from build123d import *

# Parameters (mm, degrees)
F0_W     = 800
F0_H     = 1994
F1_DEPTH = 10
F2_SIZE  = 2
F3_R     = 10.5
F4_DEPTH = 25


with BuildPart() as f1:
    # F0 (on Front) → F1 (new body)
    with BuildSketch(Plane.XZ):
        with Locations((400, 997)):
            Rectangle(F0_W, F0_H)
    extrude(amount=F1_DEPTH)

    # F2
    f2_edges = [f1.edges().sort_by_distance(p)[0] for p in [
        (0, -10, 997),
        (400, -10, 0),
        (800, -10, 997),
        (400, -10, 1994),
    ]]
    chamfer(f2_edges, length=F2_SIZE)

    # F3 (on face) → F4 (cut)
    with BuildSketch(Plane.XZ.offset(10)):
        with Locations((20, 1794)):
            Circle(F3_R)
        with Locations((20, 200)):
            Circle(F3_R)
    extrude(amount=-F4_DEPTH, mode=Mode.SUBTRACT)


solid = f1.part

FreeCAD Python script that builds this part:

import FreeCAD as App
import Part
import Sketcher
from FreeCAD import Vector


def edges_at(feature, points):
    """Names of the edges that pass closest to the given points."""
    edges = feature.Shape.Edges
    near = lambda p: min(range(len(edges)), key=lambda i: edges[i].distToShape(Part.Vertex(*p))[0])
    return sorted({f"Edge{near(p) + 1}" for p in points})

doc = App.newDocument("Part")
params = doc.addObject("Spreadsheet::Sheet", "Params")
for row, (alias, value) in enumerate([
    ("sketch1_width", "800 mm"),
    ("sketch1_height", "1994 mm"),
    ("pad1_length", "10 mm"),
    ("chamfer_size", "2 mm"),
    ("sketch2_diameter", "21 mm"),
    ("pocket1_length", "25 mm"),
], start=1):
    params.set(f"A{row}", alias)
    params.set(f"B{row}", "=" + value)
    params.setAlias(f"B{row}", alias)

body = doc.addObject("PartDesign::Body", "Body")

sketch1 = body.newObject("Sketcher::SketchObject", "Sketch")
sketch1.AttachmentSupport = (doc.getObject("XZ_Plane"), [""])
sketch1.MapMode = "FlatFace"
sketch1.addGeometry([
    Part.LineSegment(Vector(0, 1994, 0), Vector(0, 0, 0)),
    Part.LineSegment(Vector(0, 0, 0), Vector(800, 0, 0)),
    Part.LineSegment(Vector(800, 0, 0), Vector(800, 1994, 0)),
    Part.LineSegment(Vector(800, 1994, 0), Vector(0, 1994, 0)),
], False)
sketch1.addConstraint([
    Sketcher.Constraint("Coincident", 0, 2, 1, 1),
    Sketcher.Constraint("Coincident", 1, 2, 2, 1),
    Sketcher.Constraint("Coincident", 2, 2, 3, 1),
    Sketcher.Constraint("Coincident", 3, 2, 0, 1),
    Sketcher.Constraint("Vertical", 0),
    Sketcher.Constraint("Horizontal", 1),
    Sketcher.Constraint("Vertical", 2),
    Sketcher.Constraint("Horizontal", 3),
    Sketcher.Constraint("Coincident", 0, 2, -1, 1),
    Sketcher.Constraint("DistanceX", 1, 1, 1, 2, 800.0),
    Sketcher.Constraint("DistanceY", 0, 2, 0, 1, 1994.0),
])
sketch1.setExpression("Constraints[9]", "Params.sketch1_width")
sketch1.setExpression("Constraints[10]", "Params.sketch1_height")
pad1 = body.newObject("PartDesign::Pad", "Pad")
pad1.Profile = sketch1
pad1.setExpression("Length", "Params.pad1_length")
doc.recompute()

chamfer = body.newObject("PartDesign::Chamfer", "Chamfer")
chamfer.Base = (pad1, edges_at(pad1, [
    (0, -10, 997),
    (400, -10, 0),
    (800, -10, 997),
    (400, -10, 1994),
]))
chamfer.setExpression("Size", "Params.chamfer_size")

sketch2 = body.newObject("Sketcher::SketchObject", "Sketch001")
sketch2.AttachmentSupport = (doc.getObject("XZ_Plane"), [""])
sketch2.MapMode = "FlatFace"
sketch2.AttachmentOffset = App.Placement(Vector(0, 0, 10), App.Rotation())
sketch2.addGeometry([
    Part.Circle(Vector(20, 1794, 0), Vector(0, 0, 1), 10.5),
    Part.Circle(Vector(20, 200, 0), Vector(0, 0, 1), 10.5),
], False)
sketch2.addConstraint([
    Sketcher.Constraint("Equal", 0, 1),
    Sketcher.Constraint("Vertical", 0, 3, 1, 3),
    Sketcher.Constraint("Diameter", 0, 21.0),
    Sketcher.Constraint("DistanceX", -1, 1, 0, 3, 20.0),
    Sketcher.Constraint("DistanceY", -1, 1, 0, 3, 1794.0),
    Sketcher.Constraint("DistanceY", -1, 1, 1, 3, 200.0),
])
sketch2.setExpression("Constraints[2]", "Params.sketch2_diameter")
pocket1 = body.newObject("PartDesign::Pocket", "Pocket")
pocket1.Profile = sketch2
pocket1.setExpression("Length", "Params.pocket1_length")

doc.recompute()
